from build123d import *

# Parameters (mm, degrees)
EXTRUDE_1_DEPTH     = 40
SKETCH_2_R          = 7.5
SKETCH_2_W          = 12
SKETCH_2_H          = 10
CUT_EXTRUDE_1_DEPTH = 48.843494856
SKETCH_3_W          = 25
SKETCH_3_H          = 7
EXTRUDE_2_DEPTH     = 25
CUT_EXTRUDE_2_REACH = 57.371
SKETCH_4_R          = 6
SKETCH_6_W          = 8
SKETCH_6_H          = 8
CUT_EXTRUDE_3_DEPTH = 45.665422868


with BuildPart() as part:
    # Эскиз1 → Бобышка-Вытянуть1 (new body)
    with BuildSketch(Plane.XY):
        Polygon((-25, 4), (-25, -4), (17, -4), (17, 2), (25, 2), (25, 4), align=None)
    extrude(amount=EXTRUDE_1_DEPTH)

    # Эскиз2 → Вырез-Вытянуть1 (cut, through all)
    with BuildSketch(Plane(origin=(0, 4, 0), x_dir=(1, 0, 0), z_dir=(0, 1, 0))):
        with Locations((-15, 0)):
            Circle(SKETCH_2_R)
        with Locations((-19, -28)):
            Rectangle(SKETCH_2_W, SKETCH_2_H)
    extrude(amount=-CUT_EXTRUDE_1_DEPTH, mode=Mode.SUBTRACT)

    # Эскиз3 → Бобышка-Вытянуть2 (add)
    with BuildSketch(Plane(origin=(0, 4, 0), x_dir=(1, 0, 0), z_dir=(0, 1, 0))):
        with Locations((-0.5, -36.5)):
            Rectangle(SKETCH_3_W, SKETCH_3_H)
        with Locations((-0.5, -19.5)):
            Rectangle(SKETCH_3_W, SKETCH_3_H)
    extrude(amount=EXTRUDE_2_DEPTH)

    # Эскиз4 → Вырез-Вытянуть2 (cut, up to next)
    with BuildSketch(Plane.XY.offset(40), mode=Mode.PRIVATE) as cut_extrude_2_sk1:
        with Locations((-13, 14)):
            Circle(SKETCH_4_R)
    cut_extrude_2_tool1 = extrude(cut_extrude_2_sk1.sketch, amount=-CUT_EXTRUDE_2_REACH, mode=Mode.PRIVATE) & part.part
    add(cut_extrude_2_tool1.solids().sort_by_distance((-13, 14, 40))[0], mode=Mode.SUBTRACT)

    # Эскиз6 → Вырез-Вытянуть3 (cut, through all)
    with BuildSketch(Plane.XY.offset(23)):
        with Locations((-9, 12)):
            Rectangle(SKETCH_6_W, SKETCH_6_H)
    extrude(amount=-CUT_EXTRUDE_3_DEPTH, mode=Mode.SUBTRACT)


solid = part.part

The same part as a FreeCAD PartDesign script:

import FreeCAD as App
import Part
import Sketcher

doc = App.newDocument("Part")
params = doc.addObject("Spreadsheet::Sheet", "Params")
for row, (alias, value) in enumerate([
    ("sketch1_width", "42 mm"),
    ("sketch1_width2", "8 mm"),
    ("sketch1_height", "6 mm"),
    ("pad1_length", "40 mm"),
    ("sketch2_diameter", "15 mm"),
    ("sketch2_width", "12 mm"),
    ("sketch2_height", "10 mm"),
    ("sketch3_width", "25 mm"),
    ("sketch3_height", "7 mm"),
    ("pad2_length", "25 mm"),
    ("sketch4_diameter", "12 mm"),
    ("sketch5_width", "8 mm"),
], start=1):
    params.set(f"A{row}", alias)
    params.set(f"B{row}", "=" + value)
    params.setAlias(f"B{row}", alias)

body = doc.addObject("PartDesign::Body", "Body")

sketch1 = body.newObject("Sketcher::SketchObject", "Sketch")
sketch1.AttachmentSupport = (doc.getObject("XY_Plane"), [""])
sketch1.MapMode = "FlatFace"
sketch1.addGeometry(Part.LineSegment(App.Vector(-25, 4, 0), App.Vector(-25, -4, 0)), False)
sketch1.addGeometry(Part.LineSegment(App.Vector(-25, -4, 0), App.Vector(17, -4, 0)), False)
sketch1.addGeometry(Part.LineSegment(App.Vector(17, -4, 0), App.Vector(17, 2, 0)), False)
sketch1.addGeometry(Part.LineSegment(App.Vector(17, 2, 0), App.Vector(25, 2, 0)), False)
sketch1.addGeometry(Part.LineSegment(App.Vector(25, 2, 0), App.Vector(25, 4, 0)), False)
sketch1.addGeometry(Part.LineSegment(App.Vector(25, 4, 0), App.Vector(-25, 4, 0)), False)
sketch1.addConstraint(Sketcher.Constraint("Coincident", 0, 2, 1, 1))
sketch1.addConstraint(Sketcher.Constraint("Coincident", 1, 2, 2, 1))
sketch1.addConstraint(Sketcher.Constraint("Coincident", 2, 2, 3, 1))
sketch1.addConstraint(Sketcher.Constraint("Coincident", 3, 2, 4, 1))
sketch1.addConstraint(Sketcher.Constraint("Coincident", 4, 2, 5, 1))
sketch1.addConstraint(Sketcher.Constraint("Coincident", 5, 2, 0, 1))
sketch1.addConstraint(Sketcher.Constraint("Vertical", 0))
sketch1.addConstraint(Sketcher.Constraint("Horizontal", 1))
sketch1.addConstraint(Sketcher.Constraint("Vertical", 2))
sketch1.addConstraint(Sketcher.Constraint("Horizontal", 3))
sketch1.addConstraint(Sketcher.Constraint("Vertical", 4))
sketch1.addConstraint(Sketcher.Constraint("Horizontal", 5))
sketch1.addConstraint(Sketcher.Constraint("Symmetric", 0, 2, 4, 2, -1, 1))
sketch1.addConstraint(Sketcher.Constraint("Equal", 3, 0))
sketch1.addConstraint(Sketcher.Constraint("DistanceX", 1, 1, 1, 2, 42.0))
sketch1.addConstraint(Sketcher.Constraint("DistanceX", 3, 1, 3, 2, 8.0))
sketch1.addConstraint(Sketcher.Constraint("DistanceY", 2, 1, 2, 2, 6.0))
sketch1.setExpression("Constraints[14]", "Params.sketch1_width")
sketch1.setExpression("Constraints[15]", "Params.sketch1_width2")
sketch1.setExpression("Constraints[16]", "Params.sketch1_height")
pad1 = body.newObject("PartDesign::Pad", "Pad")
pad1.Profile = sketch1
pad1.setExpression("Length", "Params.pad1_length")

sketch2 = body.newObject("Sketcher::SketchObject", "Sketch001")
sketch2.AttachmentSupport = (doc.getObject("XZ_Plane"), [""])
sketch2.MapMode = "FlatFace"
sketch2.AttachmentOffset = App.Placement(App.Vector(0, 0, -4), App.Rotation())
sketch2.addGeometry(Part.Circle(App.Vector(-15, 0, 0), App.Vector(0, 0, 1), 7.5), False)
sketch2.addGeometry(Part.LineSegment(App.Vector(-25, 23, 0), App.Vector(-25, 33, 0)), False)
sketch2.addGeometry(Part.LineSegment(App.Vector(-25, 33, 0), App.Vector(-13, 33, 0)), False)
sketch2.addGeometry(Part.LineSegment(App.Vector(-13, 33, 0), App.Vector(-13, 23, 0)), False)
sketch2.addGeometry(Part.LineSegment(App.Vector(-13, 23, 0), App.Vector(-25, 23, 0)), False)
sketch2.addConstraint(Sketcher.Constraint("Coincident", 1, 2, 2, 1))
sketch2.addConstraint(Sketcher.Constraint("Coincident", 2, 2, 3, 1))
sketch2.addConstraint(Sketcher.Constraint("Coincident", 3, 2, 4, 1))
sketch2.addConstraint(Sketcher.Constraint("Coincident", 4, 2, 1, 1))
sketch2.addConstraint(Sketcher.Constraint("Vertical", 1))
sketch2.addConstraint(Sketcher.Constraint("Horizontal", 2))
sketch2.addConstraint(Sketcher.Constraint("Vertical", 3))
sketch2.addConstraint(Sketcher.Constraint("Horizontal", 4))
sketch2.addConstraint(Sketcher.Constraint("PointOnObject", 0, 3, -1))
sketch2.addConstraint(Sketcher.Constraint("Diameter", 0, 15.0))
sketch2.addConstraint(Sketcher.Constraint("DistanceX", 2, 1, 2, 2, 12.0))
sketch2.addConstraint(Sketcher.Constraint("DistanceY", 1, 1, 1, 2, 10.0))
sketch2.addConstraint(Sketcher.Constraint("DistanceX", 0, 3, -1, 1, 15.0))
sketch2.addConstraint(Sketcher.Constraint("DistanceX", 1, 2, -1, 1, 25.0))
sketch2.addConstraint(Sketcher.Constraint("DistanceY", -1, 1, 1, 2, 33.0))
sketch2.setExpression("Constraints[9]", "Params.sketch2_diameter")
sketch2.setExpression("Constraints[10]", "Params.sketch2_width")
sketch2.setExpression("Constraints[11]", "Params.sketch2_height")
pocket1 = body.newObject("PartDesign::Pocket", "Pocket")
pocket1.Profile = sketch2
pocket1.Type = "ThroughAll"
pocket1.Reversed = True

sketch3 = body.newObject("Sketcher::SketchObject", "Sketch002")
sketch3.AttachmentSupport = (doc.getObject("XZ_Plane"), [""])
sketch3.MapMode = "FlatFace"
sketch3.AttachmentOffset = App.Placement(App.Vector(0, 0, -4), App.Rotation())
sketch3.addGeometry(Part.LineSegment(App.Vector(-13, 33, 0), App.Vector(-13, 40, 0)), False)
sketch3.addGeometry(Part.LineSegment(App.Vector(-13, 40, 0), App.Vector(12, 40, 0)), False)
sketch3.addGeometry(Part.LineSegment(App.Vector(12, 40, 0), App.Vector(12, 33, 0)), False)
sketch3.addGeometry(Part.LineSegment(App.Vector(12, 33, 0), App.Vector(-13, 33, 0)), False)
sketch3.addGeometry(Part.LineSegment(App.Vector(-13, 16, 0), App.Vector(-13, 23, 0)), False)
sketch3.addGeometry(Part.LineSegment(App.Vector(-13, 23, 0), App.Vector(12, 23, 0)), False)
sketch3.addGeometry(Part.LineSegment(App.Vector(12, 23, 0), App.Vector(12, 16, 0)), False)
sketch3.addGeometry(Part.LineSegment(App.Vector(12, 16, 0), App.Vector(-13, 16, 0)), False)
sketch3.addConstraint(Sketcher.Constraint("Coincident", 0, 2, 1, 1))
sketch3.addConstraint(Sketcher.Constraint("Coincident", 1, 2, 2, 1))
sketch3.addConstraint(Sketcher.Constraint("Coincident", 2, 2, 3, 1))
sketch3.addConstraint(Sketcher.Constraint("Coincident", 3, 2, 0, 1))
sketch3.addConstraint(Sketcher.Constraint("Coincident", 4, 2, 5, 1))
sketch3.addConstraint(Sketcher.Constraint("Coincident", 5, 2, 6, 1))
sketch3.addConstraint(Sketcher.Constraint("Coincident", 6, 2, 7, 1))
sketch3.addConstraint(Sketcher.Constraint("Coincident", 7, 2, 4, 1))
sketch3.addConstraint(Sketcher.Constraint("Vertical", 0))
sketch3.addConstraint(Sketcher.Constraint("Horizontal", 1))
sketch3.addConstraint(Sketcher.Constraint("Vertical", 2))
sketch3.addConstraint(Sketcher.Constraint("Horizontal", 3))
sketch3.addConstraint(Sketcher.Constraint("Vertical", 4))
sketch3.addConstraint(Sketcher.Constraint("Horizontal", 5))
sketch3.addConstraint(Sketcher.Constraint("Vertical", 6))
sketch3.addConstraint(Sketcher.Constraint("Horizontal", 7))
sketch3.addConstraint(Sketcher.Constraint("Vertical", 3, 2, 4, 2))
sketch3.addConstraint(Sketcher.Constraint("Vertical", 2, 2, 5, 2))
sketch3.addConstraint(Sketcher.Constraint("Equal", 2, 4))
sketch3.addConstraint(Sketcher.Constraint("DistanceX", 1, 1, 1, 2, 25.0))
sketch3.addConstraint(Sketcher.Constraint("DistanceY", 0, 1, 0, 2, 7.0))
sketch3.addConstraint(Sketcher.Constraint("DistanceX", 0, 2, -1, 1, 13.0))
sketch3.addConstraint(Sketcher.Constraint("DistanceY", -1, 1, 0, 2, 40.0))
sketch3.addConstraint(Sketcher.Constraint("DistanceY", -1, 1, 4, 2, 23.0))
sketch3.setExpression("Constraints[19]", "Params.sketch3_width")
sketch3.setExpression("Constraints[20]", "Params.sketch3_height")
pad2 = body.newObject("PartDesign::Pad", "Pad001")
pad2.Profile = sketch3
pad2.setExpression("Length", "Params.pad2_length")
pad2.Reversed = True

sketch4 = body.newObject("Sketcher::SketchObject", "Sketch003")
sketch4.AttachmentSupport = (doc.getObject("XY_Plane"), [""])
sketch4.MapMode = "FlatFace"
sketch4.AttachmentOffset = App.Placement(App.Vector(0, 0, 40), App.Rotation())
sketch4.addGeometry(Part.Circle(App.Vector(-13, 14, 0), App.Vector(0, 0, 1), 6), False)
sketch4.addConstraint(Sketcher.Constraint("Diameter", 0, 12.0))
sketch4.addConstraint(Sketcher.Constraint("DistanceX", 0, 3, -1, 1, 13.0))
sketch4.addConstraint(Sketcher.Constraint("DistanceY", -1, 1, 0, 3, 14.0))
sketch4.setExpression("Constraints[0]", "Params.sketch4_diameter")
pocket2 = body.newObject("PartDesign::Pocket", "Pocket001")
pocket2.Profile = sketch4
pocket2.Type = "UpToFirst"

sketch5 = body.newObject("Sketcher::SketchObject", "Sketch004")
sketch5.AttachmentSupport = (doc.getObject("XY_Plane"), [""])
sketch5.MapMode = "FlatFace"
sketch5.AttachmentOffset = App.Placement(App.Vector(0, 0, 23), App.Rotation())
sketch5.addGeometry(Part.LineSegment(App.Vector(-13, 16, 0), App.Vector(-13, 8, 0)), False)
sketch5.addGeometry(Part.LineSegment(App.Vector(-13, 8, 0), App.Vector(-5, 8, 0)), False)
sketch5.addGeometry(Part.LineSegment(App.Vector(-5, 8, 0), App.Vector(-5, 16, 0)), False)
sketch5.addGeometry(Part.LineSegment(App.Vector(-5, 16, 0), App.Vector(-13, 16, 0)), False)
sketch5.addConstraint(Sketcher.Constraint("Coincident", 0, 2, 1, 1))
sketch5.addConstraint(Sketcher.Constraint("Coincident", 1, 2, 2, 1))
sketch5.addConstraint(Sketcher.Constraint("Coincident", 2, 2, 3, 1))
sketch5.addConstraint(Sketcher.Constraint("Coincident", 3, 2, 0, 1))
sketch5.addConstraint(Sketcher.Constraint("Vertical", 0))
sketch5.addConstraint(Sketcher.Constraint("Horizontal", 1))
sketch5.addConstraint(Sketcher.Constraint("Vertical", 2))
sketch5.addConstraint(Sketcher.Constraint("Horizontal", 3))
sketch5.addConstraint(Sketcher.Constraint("Equal", 3, 0))
sketch5.addConstraint(Sketcher.Constraint("DistanceX", 1, 1, 1, 2, 8.0))
sketch5.addConstraint(Sketcher.Constraint("DistanceX", 0, 2, -1, 1, 13.0))
sketch5.addConstraint(Sketcher.Constraint("DistanceY", -1, 1, 0, 2, 8.0))
sketch5.setExpression("Constraints[9]", "Params.sketch5_width")
pocket3 = body.newObject("PartDesign::Pocket", "Pocket002")
pocket3.Profile = sketch5
pocket3.Type = "ThroughAll"

doc.recompute()
